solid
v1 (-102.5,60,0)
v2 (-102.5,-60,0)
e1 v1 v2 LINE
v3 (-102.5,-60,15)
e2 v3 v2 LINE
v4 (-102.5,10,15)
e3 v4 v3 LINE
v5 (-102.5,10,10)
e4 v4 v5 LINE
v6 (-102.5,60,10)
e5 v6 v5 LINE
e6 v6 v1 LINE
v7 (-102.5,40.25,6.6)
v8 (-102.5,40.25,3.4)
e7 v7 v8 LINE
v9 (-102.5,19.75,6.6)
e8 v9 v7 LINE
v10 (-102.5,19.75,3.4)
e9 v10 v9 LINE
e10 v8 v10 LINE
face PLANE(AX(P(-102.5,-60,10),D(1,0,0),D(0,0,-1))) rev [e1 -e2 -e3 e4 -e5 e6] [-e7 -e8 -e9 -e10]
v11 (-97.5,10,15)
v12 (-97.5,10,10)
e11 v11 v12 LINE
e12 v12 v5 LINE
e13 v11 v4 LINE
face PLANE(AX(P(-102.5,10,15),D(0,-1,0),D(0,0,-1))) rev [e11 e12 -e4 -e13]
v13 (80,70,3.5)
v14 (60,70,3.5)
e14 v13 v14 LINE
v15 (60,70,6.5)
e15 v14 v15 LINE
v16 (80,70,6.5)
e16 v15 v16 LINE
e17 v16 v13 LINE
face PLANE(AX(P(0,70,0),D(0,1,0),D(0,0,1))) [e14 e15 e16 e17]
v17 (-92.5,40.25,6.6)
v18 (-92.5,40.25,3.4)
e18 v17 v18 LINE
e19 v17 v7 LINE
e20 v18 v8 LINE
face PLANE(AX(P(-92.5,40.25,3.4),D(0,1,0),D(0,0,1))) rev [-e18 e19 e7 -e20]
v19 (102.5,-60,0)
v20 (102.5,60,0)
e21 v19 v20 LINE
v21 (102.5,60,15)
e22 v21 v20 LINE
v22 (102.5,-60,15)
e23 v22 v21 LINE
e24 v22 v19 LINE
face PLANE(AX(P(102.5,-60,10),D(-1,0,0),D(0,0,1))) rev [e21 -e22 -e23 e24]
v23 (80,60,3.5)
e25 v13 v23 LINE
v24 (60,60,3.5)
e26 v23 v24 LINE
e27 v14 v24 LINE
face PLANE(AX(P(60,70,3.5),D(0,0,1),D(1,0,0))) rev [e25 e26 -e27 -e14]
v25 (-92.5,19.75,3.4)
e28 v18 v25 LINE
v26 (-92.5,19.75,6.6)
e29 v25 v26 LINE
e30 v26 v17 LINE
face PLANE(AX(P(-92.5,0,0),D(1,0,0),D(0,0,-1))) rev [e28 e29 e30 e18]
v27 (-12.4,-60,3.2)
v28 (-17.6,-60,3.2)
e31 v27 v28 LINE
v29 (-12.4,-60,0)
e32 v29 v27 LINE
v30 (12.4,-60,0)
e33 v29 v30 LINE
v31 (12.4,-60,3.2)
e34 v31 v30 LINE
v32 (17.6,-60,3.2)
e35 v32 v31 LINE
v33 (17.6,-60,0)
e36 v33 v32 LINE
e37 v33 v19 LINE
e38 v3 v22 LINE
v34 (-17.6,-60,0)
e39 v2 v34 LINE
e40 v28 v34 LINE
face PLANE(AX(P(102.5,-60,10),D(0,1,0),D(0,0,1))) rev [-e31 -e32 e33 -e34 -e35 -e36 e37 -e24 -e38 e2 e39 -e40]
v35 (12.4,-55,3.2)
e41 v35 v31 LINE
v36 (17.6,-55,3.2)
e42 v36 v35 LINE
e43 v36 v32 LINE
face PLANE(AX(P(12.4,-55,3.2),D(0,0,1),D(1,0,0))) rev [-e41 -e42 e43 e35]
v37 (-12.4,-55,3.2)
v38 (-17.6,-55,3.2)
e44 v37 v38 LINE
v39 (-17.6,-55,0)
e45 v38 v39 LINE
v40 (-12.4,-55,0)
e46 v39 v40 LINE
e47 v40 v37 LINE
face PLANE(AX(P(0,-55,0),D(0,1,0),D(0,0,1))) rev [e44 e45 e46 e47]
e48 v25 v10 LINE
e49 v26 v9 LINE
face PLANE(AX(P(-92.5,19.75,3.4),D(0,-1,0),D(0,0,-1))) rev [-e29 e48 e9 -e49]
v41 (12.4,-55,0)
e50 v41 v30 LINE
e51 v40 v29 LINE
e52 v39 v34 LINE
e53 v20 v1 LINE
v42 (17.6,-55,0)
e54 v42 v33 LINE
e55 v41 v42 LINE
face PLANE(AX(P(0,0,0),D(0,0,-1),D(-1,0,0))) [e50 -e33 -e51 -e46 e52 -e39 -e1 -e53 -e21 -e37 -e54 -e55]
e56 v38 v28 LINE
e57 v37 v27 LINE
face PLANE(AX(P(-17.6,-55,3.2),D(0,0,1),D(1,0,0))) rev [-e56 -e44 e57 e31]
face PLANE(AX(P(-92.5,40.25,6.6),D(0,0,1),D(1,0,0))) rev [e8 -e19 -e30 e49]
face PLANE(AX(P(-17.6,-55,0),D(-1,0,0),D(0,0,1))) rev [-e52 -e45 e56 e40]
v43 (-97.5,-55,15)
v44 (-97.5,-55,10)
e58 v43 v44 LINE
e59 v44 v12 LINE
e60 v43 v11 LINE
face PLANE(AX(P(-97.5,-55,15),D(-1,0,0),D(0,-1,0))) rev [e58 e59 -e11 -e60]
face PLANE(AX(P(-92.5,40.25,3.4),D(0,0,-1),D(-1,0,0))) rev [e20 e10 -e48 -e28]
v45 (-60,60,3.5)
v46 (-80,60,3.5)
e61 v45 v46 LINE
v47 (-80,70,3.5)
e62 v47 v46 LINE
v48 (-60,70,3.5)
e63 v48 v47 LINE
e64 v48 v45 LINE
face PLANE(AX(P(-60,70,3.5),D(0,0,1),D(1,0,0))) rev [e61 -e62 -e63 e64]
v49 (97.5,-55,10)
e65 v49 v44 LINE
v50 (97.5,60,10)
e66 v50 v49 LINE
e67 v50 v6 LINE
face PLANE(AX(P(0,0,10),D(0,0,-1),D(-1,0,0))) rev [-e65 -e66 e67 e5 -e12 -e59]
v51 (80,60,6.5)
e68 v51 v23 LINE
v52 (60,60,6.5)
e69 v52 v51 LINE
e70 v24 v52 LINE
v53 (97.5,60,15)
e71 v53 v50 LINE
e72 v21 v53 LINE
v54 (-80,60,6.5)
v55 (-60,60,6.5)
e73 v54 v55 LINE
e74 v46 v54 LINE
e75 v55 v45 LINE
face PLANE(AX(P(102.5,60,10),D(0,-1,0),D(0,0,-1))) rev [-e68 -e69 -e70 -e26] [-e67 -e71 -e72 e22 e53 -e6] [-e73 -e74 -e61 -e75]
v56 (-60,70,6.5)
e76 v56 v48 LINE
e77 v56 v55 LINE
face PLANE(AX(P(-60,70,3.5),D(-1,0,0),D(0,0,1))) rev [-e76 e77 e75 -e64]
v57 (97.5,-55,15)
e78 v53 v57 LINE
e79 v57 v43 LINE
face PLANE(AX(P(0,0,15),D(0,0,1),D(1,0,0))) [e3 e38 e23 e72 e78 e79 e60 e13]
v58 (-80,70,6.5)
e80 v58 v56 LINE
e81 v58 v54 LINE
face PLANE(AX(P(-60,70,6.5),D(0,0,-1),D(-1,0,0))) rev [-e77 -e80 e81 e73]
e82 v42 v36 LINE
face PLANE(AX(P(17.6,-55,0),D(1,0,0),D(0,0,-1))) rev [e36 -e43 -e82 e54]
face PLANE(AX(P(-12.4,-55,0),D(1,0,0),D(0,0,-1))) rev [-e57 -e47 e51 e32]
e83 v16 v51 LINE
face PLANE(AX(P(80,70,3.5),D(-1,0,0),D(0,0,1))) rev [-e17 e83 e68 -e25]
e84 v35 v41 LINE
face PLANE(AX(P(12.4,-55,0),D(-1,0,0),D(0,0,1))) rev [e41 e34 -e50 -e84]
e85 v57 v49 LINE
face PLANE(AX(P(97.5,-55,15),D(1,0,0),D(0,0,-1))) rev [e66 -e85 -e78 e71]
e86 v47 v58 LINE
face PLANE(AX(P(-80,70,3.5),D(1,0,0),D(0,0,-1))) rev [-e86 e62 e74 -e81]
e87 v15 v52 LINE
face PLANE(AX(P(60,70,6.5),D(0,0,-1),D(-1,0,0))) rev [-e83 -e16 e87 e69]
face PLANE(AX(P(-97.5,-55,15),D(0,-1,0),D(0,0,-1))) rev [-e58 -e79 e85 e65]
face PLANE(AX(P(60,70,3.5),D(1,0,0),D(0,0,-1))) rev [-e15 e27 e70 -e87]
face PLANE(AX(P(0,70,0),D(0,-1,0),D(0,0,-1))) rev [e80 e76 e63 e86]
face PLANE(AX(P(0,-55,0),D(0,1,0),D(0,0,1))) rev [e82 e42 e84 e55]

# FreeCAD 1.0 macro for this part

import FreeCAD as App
import Part
import Sketcher
Q = App.Units.Quantity


def add_polygon(sketch, points):
    """Adds a closed chain of lines whose ends are joined by coincident constraints."""
    first, n = sketch.GeometryCount, len(points)
    for a, b in zip(points, points[1:] + points[:1]):
        sketch.addGeometry(Part.LineSegment(App.Vector(*a, 0), App.Vector(*b, 0)), False)
    for i in range(n):
        sketch.addConstraint(Sketcher.Constraint("Coincident", first + i, 2, first + (i + 1) % n, 1))

doc = App.newDocument("Part")
body = doc.addObject("PartDesign::Body", "Body")

sketch1 = body.newObject("Sketcher::SketchObject", "Sketch")
sketch1.AttachmentSupport = (doc.getObject("XY_Plane"), [""])
sketch1.MapMode = "FlatFace"
add_polygon(sketch1, [(-102.5, -60), (102.5, -60), (102.5, 60), (-102.5, 60)])
sketch1.addConstraint([
    Sketcher.Constraint("Horizontal", 0),
    Sketcher.Constraint("Vertical", 1),
    Sketcher.Constraint("Horizontal", 2),
    Sketcher.Constraint("Vertical", 3),
    Sketcher.Constraint("Symmetric", 0, 2, 2, 2, -1, 1),
    Sketcher.Constraint("DistanceX", 0, 1, 0, 2, Q("205 mm")),
    Sketcher.Constraint("DistanceY", 1, 1, 1, 2, Q("120 mm")),
])
pad1 = body.newObject("PartDesign::Pad", "Pad")
pad1.Profile = sketch1
pad1.Length = 10

sketch2 = body.newObject("Sketcher::SketchObject", "Sketch001")
sketch2.AttachmentSupport = (doc.getObject("XY_Plane"), [""])
sketch2.MapMode = "FlatFace"
sketch2.AttachmentOffset = App.Placement(App.Vector(0, 0, 10), App.Rotation())
add_polygon(sketch2, [(97.5, -55), (-97.5, -55), (-97.5, 10), (-102.5, 10), (-102.5, -60), (102.5, -60), (102.5, 60), (97.5, 60)])
sketch2.addConstraint([
    Sketcher.Constraint("Horizontal", 0),
    Sketcher.Constraint("Vertical", 1),
    Sketcher.Constraint("Horizontal", 2),
    Sketcher.Constraint("Vertical", 3),
    Sketcher.Constraint("Horizontal", 4),
    Sketcher.Constraint("Vertical", 5),
    Sketcher.Constraint("Horizontal", 6),
    Sketcher.Constraint("Vertical", 7),
    Sketcher.Constraint("Symmetric", 3, 2, 5, 2, -1, 1),
    Sketcher.Constraint("Equal", 2, 6),
    Sketcher.Constraint("DistanceX", 0, 2, 0, 1, Q("195 mm")),
    Sketcher.Constraint("DistanceX", 2, 2, 2, 1, Q("5 mm")),
    Sketcher.Constraint("DistanceY", 1, 1, 1, 2, Q("65 mm")),
    Sketcher.Constraint("DistanceY", 3, 2, 3, 1, Q("70 mm")),
    Sketcher.Constraint("DistanceY", 5, 1, 5, 2, Q("120 mm")),
])
pad2 = body.newObject("PartDesign::Pad", "Pad001")
pad2.Profile = sketch2
pad2.Length = 5

sketch3 = body.newObject("Sketcher::SketchObject", "Sketch002")
sketch3.AttachmentSupport = (doc.getObject("YZ_Plane"), [""])
sketch3.MapMode = "FlatFace"
sketch3.AttachmentOffset = App.Placement(App.Vector(0, 0, -102.5), App.Rotation())
add_polygon(sketch3, [(40.25, 6.6), (40.25, 3.4), (19.75, 3.4), (19.75, 6.6)])
sketch3.addConstraint([
    Sketcher.Constraint("Vertical", 0),
    Sketcher.Constraint("Horizontal", 1),
    Sketcher.Constraint("Vertical", 2),
    Sketcher.Constraint("Horizontal", 3),
    Sketcher.Constraint("DistanceX", 1, 2, 1, 1, Q("20.5 mm")),
    Sketcher.Constraint("DistanceY", 0, 2, 0, 1, Q("3.2 mm")),
    Sketcher.Constraint("DistanceY", -1, 1, 0, 2, Q("3.4 mm")),
    Sketcher.Constraint("DistanceX", -1, 1, 0, 2, Q("40.25 mm")),
])
pocket1 = body.newObject("PartDesign::Pocket", "Pocket")
pocket1.Profile = sketch3
pocket1.Length = 10
pocket1.Reversed = True

sketch4 = body.newObject("Sketcher::SketchObject", "Sketch003")
sketch4.AttachmentSupport = (doc.getObject("XZ_Plane"), [""])
sketch4.MapMode = "FlatFace"
sketch4.AttachmentOffset = App.Placement(App.Vector(0, 0, -60), App.Rotation())
add_polygon(sketch4, [(-60, 6.5), (-60, 3.5), (-80, 3.5), (-80, 6.5)])
add_polygon(sketch4, [(80, 6.5), (80, 3.5), (60, 3.5), (60, 6.5)])
sketch4.addConstraint([
    Sketcher.Constraint("Vertical", 0),
    Sketcher.Constraint("Horizontal", 1),
    Sketcher.Constraint("Vertical", 2),
    Sketcher.Constraint("Horizontal", 3),
    Sketcher.Constraint("Vertical", 4),
    Sketcher.Constraint("Horizontal", 5),
    Sketcher.Constraint("Vertical", 6),
    Sketcher.Constraint("Horizontal", 7),
    Sketcher.Constraint("Symmetric", 1, 2, 4, 2, -2),
    Sketcher.Constraint("Symmetric", 3, 2, 6, 2, -2),
    Sketcher.Constraint("DistanceX", 1, 2, 1, 1, Q("20 mm")),
    Sketcher.Constraint("DistanceY", 0, 2, 0, 1, Q("3 mm")),
    Sketcher.Constraint("DistanceX", 0, 2, -1, 1, Q("60 mm")),
    Sketcher.Constraint("DistanceY", -1, 1, 0, 2, Q("3.5 mm")),
])
pad3 = body.newObject("PartDesign::Pad", "Pad002")
pad3.Profile = sketch4
pad3.Length = 10
pad3.Reversed = True

sketch5 = body.newObject("Sketcher::SketchObject", "Sketch004")
sketch5.AttachmentSupport = (doc.getObject("XZ_Plane"), [""])
sketch5.MapMode = "FlatFace"
sketch5.AttachmentOffset = App.Placement(App.Vector(0, 0, 60), App.Rotation())
add_polygon(sketch5, [(12.4, 3.2), (12.4, 0), (17.6, 0), (17.6, 3.2)])
add_polygon(sketch5, [(-17.6, 3.2), (-17.6, 0), (-12.4, 0), (-12.4, 3.2)])
sketch5.addConstraint([
    Sketcher.Constraint("Vertical", 0),
    Sketcher.Constraint("Horizontal", 1),
    Sketcher.Constraint("Vertical", 2),
    Sketcher.Constraint("Horizontal", 3),
    Sketcher.Constraint("Vertical", 4),
    Sketcher.Constraint("Horizontal", 5),
    Sketcher.Constraint("Vertical", 6),
    Sketcher.Constraint("Horizontal", 7),
    Sketcher.Constraint("Symmetric", 1, 2, 4, 2, -1, 1),
    Sketcher.Constraint("Symmetric", 0, 2, 5, 2, -2),
    Sketcher.Constraint("Horizontal", 3, 2, 6, 2),
    Sketcher.Constraint("DistanceX", 1, 1, 1, 2, Q("5.2 mm")),
    Sketcher.Constraint("DistanceY", 0, 2, 0, 1, Q("3.2 mm")),
    Sketcher.Constraint("DistanceX", 4, 2, 0, 2, Q("30 mm")),
])
pocket2 = body.newObject("PartDesign::Pocket", "Pocket001")
pocket2.Profile = sketch5
pocket2.Length = 5

doc.recompute()
